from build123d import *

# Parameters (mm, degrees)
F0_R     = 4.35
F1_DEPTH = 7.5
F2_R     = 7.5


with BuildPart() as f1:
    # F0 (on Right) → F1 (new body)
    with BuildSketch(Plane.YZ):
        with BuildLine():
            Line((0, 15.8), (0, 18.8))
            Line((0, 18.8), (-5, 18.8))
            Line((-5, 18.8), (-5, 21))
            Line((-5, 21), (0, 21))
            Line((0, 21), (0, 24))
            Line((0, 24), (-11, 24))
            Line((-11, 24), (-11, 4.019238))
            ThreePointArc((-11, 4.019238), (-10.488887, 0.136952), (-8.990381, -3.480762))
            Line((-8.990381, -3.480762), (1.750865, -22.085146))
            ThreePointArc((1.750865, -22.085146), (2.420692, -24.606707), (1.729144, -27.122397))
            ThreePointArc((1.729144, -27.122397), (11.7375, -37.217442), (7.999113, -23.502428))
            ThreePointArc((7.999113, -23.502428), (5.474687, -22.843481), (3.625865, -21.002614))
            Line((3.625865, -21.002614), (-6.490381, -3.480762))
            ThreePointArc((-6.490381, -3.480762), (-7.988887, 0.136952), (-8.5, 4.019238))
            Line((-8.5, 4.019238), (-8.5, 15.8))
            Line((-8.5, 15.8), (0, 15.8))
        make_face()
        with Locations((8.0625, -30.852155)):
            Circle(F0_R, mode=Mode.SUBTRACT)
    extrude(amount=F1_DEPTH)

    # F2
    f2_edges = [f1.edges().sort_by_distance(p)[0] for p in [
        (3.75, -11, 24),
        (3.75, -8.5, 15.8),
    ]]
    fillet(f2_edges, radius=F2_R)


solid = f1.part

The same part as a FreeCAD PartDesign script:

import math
import FreeCAD as App
import Part
import Sketcher

V = App.Vector
Q = App.Units.Quantity


def edges_at(feature, points):
    """Names of the edges that pass closest to the given points."""
    edges = feature.Shape.Edges
    near = lambda p: min(range(len(edges)), key=lambda i: edges[i].distToShape(Part.Vertex(*p))[0])
    return sorted({f"Edge{near(p) + 1}" for p in points})

doc = App.newDocument("Part")
body = doc.addObject("PartDesign::Body", "Body")

sketch1 = body.newObject("Sketcher::SketchObject", "Sketch")
sketch1.AttachmentSupport = (doc.getObject("YZ_Plane"), [""])
sketch1.MapMode = "FlatFace"
sketch1.addGeometry([
    Part.LineSegment(V(0, 15.8, 0), V(0, 18.8, 0)),
    Part.LineSegment(V(0, 18.8, 0), V(-5, 18.8, 0)),
    Part.LineSegment(V(-5, 18.8, 0), V(-5, 21, 0)),
    Part.LineSegment(V(-5, 21, 0), V(0, 21, 0)),
    Part.LineSegment(V(0, 21, 0), V(0, 24, 0)),
    Part.LineSegment(V(0, 24, 0), V(-11, 24, 0)),
    Part.LineSegment(V(-11, 24, 0), V(-11, 4.019238, 0)),
    Part.ArcOfCircle(Part.Circle(V(4.000008, 4.01924, 0), V(0, 0, 1), 15.000008), math.radians(-179.999992), math.radians(-150.000007)),
    Part.LineSegment(V(-8.990381, -3.480762, 0), V(1.750865, -22.085146, 0)),
    Part.ArcOfCircle(Part.Circle(V(-2.57926, -24.585147, 0), V(0, 0, 1), 4.999999), math.radians(-30.49414), math.radians(30.000016)),
    Part.ArcOfCircle(Part.Circle(V(8.062501, -30.852155, 0), V(0, 0, 1), 7.35), math.radians(149.505874), math.radians(450.494136)),
    Part.ArcOfCircle(Part.Circle(V(7.955992, -18.502615, 0), V(0, 0, 1), 4.999999), math.radians(-150.000004), math.radians(-89.505858)),
    Part.LineSegment(V(3.625865, -21.002614, 0), V(-6.490381, -3.480762, 0)),
    Part.ArcOfCircle(Part.Circle(V(6.500008, 4.01924, 0), V(0, 0, 1), 15.000008), math.radians(-179.999992), math.radians(-150.000007)),
    Part.LineSegment(V(-8.5, 4.019238, 0), V(-8.5, 15.8, 0)),
    Part.LineSegment(V(-8.5, 15.8, 0), V(0, 15.8, 0)),
    Part.Circle(V(8.0625, -30.852155, 0), V(0, 0, 1), 4.35),
], False)
sketch1.addConstraint([
    Sketcher.Constraint("Coincident", 0, 2, 1, 1),
    Sketcher.Constraint("Coincident", 1, 2, 2, 1),
    Sketcher.Constraint("Coincident", 2, 2, 3, 1),
    Sketcher.Constraint("Coincident", 3, 2, 4, 1),
    Sketcher.Constraint("Coincident", 4, 2, 5, 1),
    Sketcher.Constraint("Coincident", 5, 2, 6, 1),
    Sketcher.Constraint("Tangent", 6, 2, 7, 1),
    Sketcher.Constraint("Tangent", 7, 2, 8, 1),
    Sketcher.Constraint("Tangent", 8, 2, 9, 2),
    Sketcher.Constraint("Tangent", 9, 1, 10, 1),
    Sketcher.Constraint("Tangent", 10, 2, 11, 2),
    Sketcher.Constraint("Tangent", 11, 1, 12, 1),
    Sketcher.Constraint("Tangent", 12, 2, 13, 2),
    Sketcher.Constraint("Tangent", 13, 1, 14, 1),
    Sketcher.Constraint("Coincident", 14, 2, 15, 1),
    Sketcher.Constraint("Coincident", 15, 2, 0, 1),
    Sketcher.Constraint("Vertical", 0),
    Sketcher.Constraint("Horizontal", 1),
    Sketcher.Constraint("Vertical", 2),
    Sketcher.Constraint("Horizontal", 3),
    Sketcher.Constraint("Vertical", 4),
    Sketcher.Constraint("Horizontal", 5),
    Sketcher.Constraint("Vertical", 6),
    Sketcher.Constraint("Vertical", 14),
    Sketcher.Constraint("Horizontal", 15),
    Sketcher.Constraint("Coincident", 16, 3, 10, 3),
    Sketcher.Constraint("Equal", 9, 11),
    Sketcher.Constraint("Equal", 7, 13),
    Sketcher.Constraint("PointOnObject", 0, 2, -2),
    Sketcher.Constraint("PointOnObject", 3, 2, -2),
    Sketcher.Constraint("Parallel", 8, 12),
    Sketcher.Constraint("Horizontal", 7, 3, 13, 3),
    Sketcher.Constraint("Equal", 0, 4),
    Sketcher.Constraint("Radius", 9, Q("4.999999 mm")),
    Sketcher.Constraint("Diameter", 16, Q("8.7 mm")),
    Sketcher.Constraint("DistanceX", 1, 2, 1, 1, Q("5 mm")),
    Sketcher.Constraint("DistanceX", 5, 2, 5, 1, Q("11 mm")),
    Sketcher.Constraint("DistanceY", 0, 1, 0, 2, Q("3 mm")),
    Sketcher.Constraint("Angle", 8, Q("-60 deg")),
    Sketcher.Constraint("Radius", 10, Q("7.35 mm")),
    Sketcher.Constraint("DistanceX", 15, 1, 15, 2, Q("8.5 mm")),
    Sketcher.Constraint("DistanceY", 2, 1, 2, 2, Q("2.2 mm")),
    Sketcher.Constraint("DistanceY", -1, 1, 2, 2, Q("21 mm")),
    Sketcher.Constraint("DistanceY", 7, 2, 6, 2, Q("7.5 mm")),
    Sketcher.Constraint("DistanceX", 8, 2, 11, 1, Q("1.875 mm")),
    Sketcher.Constraint("DistanceY", 6, 2, 6, 1, Q("19.980762 mm")),
    Sketcher.Constraint("DistanceX", -1, 1, 10, 3, Q("8.062501 mm")),
])
pad1 = body.newObject("PartDesign::Pad", "Pad")
pad1.Profile = sketch1
pad1.Length = 7.5
doc.recompute()

fillet = body.newObject("PartDesign::Fillet", "Fillet")
fillet.Base = (pad1, edges_at(pad1, [(3.75, -11, 24), (3.75, -8.5, 15.8)]))
fillet.Radius = 7.5

doc.recompute()
